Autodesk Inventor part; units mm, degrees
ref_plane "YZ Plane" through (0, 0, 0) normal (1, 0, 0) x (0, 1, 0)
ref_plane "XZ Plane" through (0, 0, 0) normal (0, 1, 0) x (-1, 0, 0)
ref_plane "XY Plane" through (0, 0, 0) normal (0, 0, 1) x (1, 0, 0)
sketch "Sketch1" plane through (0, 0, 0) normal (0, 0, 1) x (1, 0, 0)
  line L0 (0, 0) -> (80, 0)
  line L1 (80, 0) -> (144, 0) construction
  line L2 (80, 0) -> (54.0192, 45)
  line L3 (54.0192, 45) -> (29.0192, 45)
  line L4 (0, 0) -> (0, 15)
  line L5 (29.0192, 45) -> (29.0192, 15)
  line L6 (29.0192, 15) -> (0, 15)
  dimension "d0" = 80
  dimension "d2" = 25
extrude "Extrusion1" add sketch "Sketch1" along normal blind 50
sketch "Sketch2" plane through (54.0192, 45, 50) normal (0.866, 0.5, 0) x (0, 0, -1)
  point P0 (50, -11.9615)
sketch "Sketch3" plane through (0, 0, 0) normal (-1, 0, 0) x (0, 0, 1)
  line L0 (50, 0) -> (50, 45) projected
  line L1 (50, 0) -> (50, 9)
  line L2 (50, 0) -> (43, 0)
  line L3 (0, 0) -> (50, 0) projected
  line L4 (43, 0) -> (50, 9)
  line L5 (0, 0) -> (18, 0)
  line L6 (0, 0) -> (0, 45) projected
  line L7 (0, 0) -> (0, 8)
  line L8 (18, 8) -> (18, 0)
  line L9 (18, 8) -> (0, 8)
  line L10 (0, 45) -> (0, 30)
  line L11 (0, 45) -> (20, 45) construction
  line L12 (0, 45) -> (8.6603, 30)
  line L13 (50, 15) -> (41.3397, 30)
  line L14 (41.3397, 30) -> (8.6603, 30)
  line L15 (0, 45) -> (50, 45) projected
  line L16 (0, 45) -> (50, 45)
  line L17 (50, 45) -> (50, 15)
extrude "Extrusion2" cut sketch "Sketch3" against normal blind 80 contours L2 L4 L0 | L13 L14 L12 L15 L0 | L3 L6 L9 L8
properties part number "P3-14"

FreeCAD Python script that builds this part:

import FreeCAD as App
import Part
import Sketcher
Q = App.Units.Quantity


def add_polygon(sketch, points):
    """Adds a closed chain of lines whose ends are joined by coincident constraints."""
    first, n = sketch.GeometryCount, len(points)
    for a, b in zip(points, points[1:] + points[:1]):
        sketch.addGeometry(Part.LineSegment(App.Vector(*a, 0), App.Vector(*b, 0)), False)
    for i in range(n):
        sketch.addConstraint(Sketcher.Constraint("Coincident", first + i, 2, first + (i + 1) % n, 1))

doc = App.newDocument("Part")
body = doc.addObject("PartDesign::Body", "Body")

# Sketch on XY plane
sketch1 = body.newObject("Sketcher::SketchObject", "Sketch")
sketch1.AttachmentSupport = (doc.getObject("XY_Plane"), [""])
sketch1.MapMode = "FlatFace"
add_polygon(sketch1, [(0, 15), (0, 0), (80, 0), (54, 45), (29, 45), (29, 15)])  # lines 0-5
sketch1.addConstraint(Sketcher.Constraint("Vertical", 0))
sketch1.addConstraint(Sketcher.Constraint("Horizontal", 1))
sketch1.addConstraint(Sketcher.Constraint("Horizontal", 3))
sketch1.addConstraint(Sketcher.Constraint("Vertical", 4))
sketch1.addConstraint(Sketcher.Constraint("Horizontal", 5))
sketch1.addConstraint(Sketcher.Constraint("Coincident", 0, 2, -1, 1))
sketch1.addConstraint(Sketcher.Constraint("DistanceX", 1, 1, 1, 2, 80.0))
sketch1.addConstraint(Sketcher.Constraint("DistanceX", 3, 2, 3, 1, 25.0))
sketch1.addConstraint(Sketcher.Constraint("DistanceY", 0, 2, 0, 1, 15.0))
sketch1.addConstraint(Sketcher.Constraint("DistanceY", 4, 2, 4, 1, 30.0))
sketch1.addConstraint(Sketcher.Constraint("Angle", 2, Q("120 deg")))
pad1 = body.newObject("PartDesign::Pad", "Pad")
pad1.Profile = sketch1
pad1.Length = 50

# Sketch on YZ plane
sketch2 = body.newObject("Sketcher::SketchObject", "Sketch001")
sketch2.AttachmentSupport = (doc.getObject("YZ_Plane"), [""])
sketch2.MapMode = "FlatFace"
add_polygon(sketch2, [(0, 43), (0, 50), (9, 50)])  # lines 0-2
add_polygon(sketch2, [(30, 41), (15, 50), (45, 50), (45, 0), (30, 9)])  # lines 3-7
add_polygon(sketch2, [(0, 0), (0, 18), (8, 18), (8, 0)])  # lines 8-11
sketch2.addConstraint(Sketcher.Constraint("Vertical", 0))
sketch2.addConstraint(Sketcher.Constraint("Horizontal", 1))
sketch2.addConstraint(Sketcher.Constraint("Horizontal", 4))
sketch2.addConstraint(Sketcher.Constraint("Vertical", 5))
sketch2.addConstraint(Sketcher.Constraint("Vertical", 7))
sketch2.addConstraint(Sketcher.Constraint("Vertical", 8))
sketch2.addConstraint(Sketcher.Constraint("Horizontal", 9))
sketch2.addConstraint(Sketcher.Constraint("Vertical", 10))
sketch2.addConstraint(Sketcher.Constraint("Horizontal", 11))
sketch2.addConstraint(Sketcher.Constraint("Coincident", 11, 2, -1, 1))
sketch2.addConstraint(Sketcher.Constraint("PointOnObject", 0, 2, -2))
sketch2.addConstraint(Sketcher.Constraint("PointOnObject", 5, 2, -1))
sketch2.addConstraint(Sketcher.Constraint("Parallel", 3, 6))
sketch2.addConstraint(Sketcher.Constraint("Horizontal", 1, 2, 3, 2))
sketch2.addConstraint(Sketcher.Constraint("Equal", 3, 6))
sketch2.addConstraint(Sketcher.Constraint("DistanceX", 1, 1, 1, 2, 9.0))
sketch2.addConstraint(Sketcher.Constraint("DistanceX", 4, 1, 4, 2, 30.0))
sketch2.addConstraint(Sketcher.Constraint("DistanceX", 9, 1, 9, 2, 8.0))
sketch2.addConstraint(Sketcher.Constraint("DistanceY", 0, 1, 0, 2, 7.0))
sketch2.addConstraint(Sketcher.Constraint("DistanceY", 5, 2, 5, 1, 50.0))
sketch2.addConstraint(Sketcher.Constraint("DistanceY", 8, 1, 8, 2, 18.0))
sketch2.addConstraint(Sketcher.Constraint("Angle", 3, Q("149.9999 deg")))
sketch2.addConstraint(Sketcher.Constraint("DistanceX", -1, 1, 3, 2, 15.0))
pocket1 = body.newObject("PartDesign::Pocket", "Pocket")
pocket1.Profile = sketch2
pocket1.Length = 80
pocket1.Reversed = True

doc.recompute()
